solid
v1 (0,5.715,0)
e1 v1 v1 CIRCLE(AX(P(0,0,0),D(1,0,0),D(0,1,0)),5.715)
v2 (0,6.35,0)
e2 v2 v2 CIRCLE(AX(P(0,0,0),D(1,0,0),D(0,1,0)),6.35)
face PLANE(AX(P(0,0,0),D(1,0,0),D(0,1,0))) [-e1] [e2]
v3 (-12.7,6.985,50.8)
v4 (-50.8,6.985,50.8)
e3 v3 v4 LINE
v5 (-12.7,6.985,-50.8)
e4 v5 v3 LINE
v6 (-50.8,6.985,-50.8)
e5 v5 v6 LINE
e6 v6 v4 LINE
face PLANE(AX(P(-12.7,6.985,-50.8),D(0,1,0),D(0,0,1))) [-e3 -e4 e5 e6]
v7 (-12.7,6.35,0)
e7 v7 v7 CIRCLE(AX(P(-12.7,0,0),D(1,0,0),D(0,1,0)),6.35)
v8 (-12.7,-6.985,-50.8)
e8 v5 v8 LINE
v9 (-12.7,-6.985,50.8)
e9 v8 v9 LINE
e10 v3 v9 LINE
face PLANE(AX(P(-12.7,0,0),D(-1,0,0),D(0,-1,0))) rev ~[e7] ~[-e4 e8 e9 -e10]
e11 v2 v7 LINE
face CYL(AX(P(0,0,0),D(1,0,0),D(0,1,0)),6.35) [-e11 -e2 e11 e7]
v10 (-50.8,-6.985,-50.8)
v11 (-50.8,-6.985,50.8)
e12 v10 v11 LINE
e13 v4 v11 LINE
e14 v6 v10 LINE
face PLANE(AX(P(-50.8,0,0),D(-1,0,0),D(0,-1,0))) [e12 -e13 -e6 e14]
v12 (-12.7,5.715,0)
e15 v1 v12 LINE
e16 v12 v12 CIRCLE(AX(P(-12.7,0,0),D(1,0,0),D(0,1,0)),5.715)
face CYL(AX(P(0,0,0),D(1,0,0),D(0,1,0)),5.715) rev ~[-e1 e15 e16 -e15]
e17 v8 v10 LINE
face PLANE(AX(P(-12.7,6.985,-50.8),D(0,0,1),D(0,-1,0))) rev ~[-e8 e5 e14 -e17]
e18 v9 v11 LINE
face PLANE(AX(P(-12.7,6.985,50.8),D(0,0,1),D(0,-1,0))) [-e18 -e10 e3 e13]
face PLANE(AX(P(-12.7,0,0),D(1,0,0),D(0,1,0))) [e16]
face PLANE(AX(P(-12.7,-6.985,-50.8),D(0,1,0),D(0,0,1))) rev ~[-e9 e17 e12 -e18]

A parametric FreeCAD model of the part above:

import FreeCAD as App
import Part
import Sketcher

V = App.Vector
Q = App.Units.Quantity


def add_polygon(sketch, points):
    """Adds a closed chain of lines whose ends are joined by coincident constraints."""
    first, n = sketch.GeometryCount, len(points)
    for a, b in zip(points, points[1:] + points[:1]):
        sketch.addGeometry(Part.LineSegment(App.Vector(*a, 0), App.Vector(*b, 0)), False)
    for i in range(n):
        sketch.addConstraint(Sketcher.Constraint("Coincident", first + i, 2, first + (i + 1) % n, 1))

doc = App.newDocument("Part")
body = doc.addObject("PartDesign::Body", "Body")

sketch1 = body.newObject("Sketcher::SketchObject", "Sketch")
sketch1.AttachmentSupport = (doc.getObject("YZ_Plane"), [""])
sketch1.MapMode = "FlatFace"
sketch1.addGeometry(Part.Circle(V(0, 0, 0), V(0, 0, 1), 6), False)
sketch1.addConstraint([
    Sketcher.Constraint("Coincident", 0, 3, -1, 1),
    Sketcher.Constraint("Diameter", 0, Q("0.5 in")),
])
pad1 = body.newObject("PartDesign::Pad", "Pad")
pad1.Profile = sketch1
pad1.Length = Q("0.5 in")
pad1.Reversed = True

sketch2 = body.newObject("Sketcher::SketchObject", "Sketch001")
sketch2.AttachmentSupport = (doc.getObject("YZ_Plane"), [""])
sketch2.MapMode = "FlatFace"
sketch2.AttachmentOffset = App.Placement(V(0, 0, -0.5 * 25.4), App.Rotation())
add_polygon(sketch2, [(7, 51), (7, -51), (-7, -51), (-7, 51)])
sketch2.addConstraint([
    Sketcher.Constraint("Vertical", 0),
    Sketcher.Constraint("Horizontal", 1),
    Sketcher.Constraint("Vertical", 2),
    Sketcher.Constraint("Horizontal", 3),
    Sketcher.Constraint("Symmetric", 0, 2, 2, 2, -1, 1),
    Sketcher.Constraint("DistanceY", 0, 2, 0, 1, Q("4 in")),
    Sketcher.Constraint("DistanceX", 1, 2, 1, 1, Q("0.55 in")),
])
pad2 = body.newObject("PartDesign::Pad", "Pad001")
pad2.Profile = sketch2
pad2.Length = Q("1.5 in")
pad2.Reversed = True

sketch3 = body.newObject("Sketcher::SketchObject", "Sketch002")
sketch3.AttachmentSupport = (doc.getObject("YZ_Plane"), [""])
sketch3.MapMode = "FlatFace"
sketch3.addGeometry(Part.Circle(V(0, 0, 0), V(0, 0, 1), 6), False)
sketch3.addConstraint([
    Sketcher.Constraint("Coincident", 0, 3, -1, 1),
    Sketcher.Constraint("Diameter", 0, Q("0.45 in")),
])
pocket1 = body.newObject("PartDesign::Pocket", "Pocket")
pocket1.Profile = sketch3
pocket1.Length = Q("0.5 in")

doc.recompute()
